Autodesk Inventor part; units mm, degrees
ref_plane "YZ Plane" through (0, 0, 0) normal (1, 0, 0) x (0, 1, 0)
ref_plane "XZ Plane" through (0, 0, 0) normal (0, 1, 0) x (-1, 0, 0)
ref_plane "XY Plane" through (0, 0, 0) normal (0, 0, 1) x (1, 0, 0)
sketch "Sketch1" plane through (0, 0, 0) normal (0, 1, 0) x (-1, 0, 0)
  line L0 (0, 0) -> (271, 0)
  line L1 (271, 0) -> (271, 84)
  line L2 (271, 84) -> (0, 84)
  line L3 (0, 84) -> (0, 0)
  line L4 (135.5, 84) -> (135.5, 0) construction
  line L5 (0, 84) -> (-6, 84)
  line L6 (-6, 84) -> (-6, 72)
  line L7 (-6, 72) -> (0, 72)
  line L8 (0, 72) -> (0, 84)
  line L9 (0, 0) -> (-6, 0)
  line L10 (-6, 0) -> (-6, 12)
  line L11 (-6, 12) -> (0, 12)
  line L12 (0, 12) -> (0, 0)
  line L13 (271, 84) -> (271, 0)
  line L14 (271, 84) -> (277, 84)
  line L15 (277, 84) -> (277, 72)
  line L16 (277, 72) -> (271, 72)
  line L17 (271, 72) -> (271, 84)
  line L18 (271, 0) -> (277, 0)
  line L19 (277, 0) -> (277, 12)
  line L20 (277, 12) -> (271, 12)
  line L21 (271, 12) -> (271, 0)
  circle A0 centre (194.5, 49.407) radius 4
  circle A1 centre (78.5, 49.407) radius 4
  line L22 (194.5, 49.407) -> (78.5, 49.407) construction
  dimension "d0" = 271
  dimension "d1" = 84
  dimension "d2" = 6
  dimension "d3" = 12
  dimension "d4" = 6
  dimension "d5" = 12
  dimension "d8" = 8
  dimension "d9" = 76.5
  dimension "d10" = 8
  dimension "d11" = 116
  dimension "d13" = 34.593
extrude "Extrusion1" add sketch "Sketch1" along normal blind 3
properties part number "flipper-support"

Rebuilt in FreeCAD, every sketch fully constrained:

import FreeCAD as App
import Part
import Sketcher
from FreeCAD import Vector

doc = App.newDocument("Part")
body = doc.addObject("PartDesign::Body", "Body")

# Sketch on XZ plane
sketch1 = body.newObject("Sketcher::SketchObject", "Sketch")
sketch1.AttachmentSupport = (doc.getObject("XZ_Plane"), [""])
sketch1.MapMode = "FlatFace"
sketch1.addGeometry(Part.LineSegment(Vector(0, 72, 0), Vector(0, 12, 0)), False)
sketch1.addGeometry(Part.LineSegment(Vector(0, 12, 0), Vector(6, 12, 0)), False)
sketch1.addGeometry(Part.LineSegment(Vector(6, 12, 0), Vector(6, 0, 0)), False)
sketch1.addGeometry(Part.LineSegment(Vector(6, 0, 0), Vector(-277, 0, 0)), False)
sketch1.addGeometry(Part.LineSegment(Vector(-277, 0, 0), Vector(-277, 12, 0)), False)
sketch1.addGeometry(Part.LineSegment(Vector(-277, 12, 0), Vector(-271, 12, 0)), False)
sketch1.addGeometry(Part.LineSegment(Vector(-271, 12, 0), Vector(-271, 72, 0)), False)
sketch1.addGeometry(Part.LineSegment(Vector(-271, 72, 0), Vector(-277, 72, 0)), False)
sketch1.addGeometry(Part.LineSegment(Vector(-277, 72, 0), Vector(-277, 84, 0)), False)
sketch1.addGeometry(Part.LineSegment(Vector(-277, 84, 0), Vector(6, 84, 0)), False)
sketch1.addGeometry(Part.LineSegment(Vector(6, 84, 0), Vector(6, 72, 0)), False)
sketch1.addGeometry(Part.LineSegment(Vector(6, 72, 0), Vector(0, 72, 0)), False)
sketch1.addGeometry(Part.Circle(Vector(-78.5, 49.407, 0), Vector(0, 0, 1), 4), False)
sketch1.addGeometry(Part.Circle(Vector(-194.5, 49.407, 0), Vector(0, 0, 1), 4), False)
sketch1.addConstraint(Sketcher.Constraint("Coincident", 0, 2, 1, 1))
sketch1.addConstraint(Sketcher.Constraint("Coincident", 1, 2, 2, 1))
sketch1.addConstraint(Sketcher.Constraint("Coincident", 2, 2, 3, 1))
sketch1.addConstraint(Sketcher.Constraint("Coincident", 3, 2, 4, 1))
sketch1.addConstraint(Sketcher.Constraint("Coincident", 4, 2, 5, 1))
sketch1.addConstraint(Sketcher.Constraint("Coincident", 5, 2, 6, 1))
sketch1.addConstraint(Sketcher.Constraint("Coincident", 6, 2, 7, 1))
sketch1.addConstraint(Sketcher.Constraint("Coincident", 7, 2, 8, 1))
sketch1.addConstraint(Sketcher.Constraint("Coincident", 8, 2, 9, 1))
sketch1.addConstraint(Sketcher.Constraint("Coincident", 9, 2, 10, 1))
sketch1.addConstraint(Sketcher.Constraint("Coincident", 10, 2, 11, 1))
sketch1.addConstraint(Sketcher.Constraint("Coincident", 11, 2, 0, 1))
sketch1.addConstraint(Sketcher.Constraint("Vertical", 0))
sketch1.addConstraint(Sketcher.Constraint("Horizontal", 1))
sketch1.addConstraint(Sketcher.Constraint("Vertical", 2))
sketch1.addConstraint(Sketcher.Constraint("Horizontal", 3))
sketch1.addConstraint(Sketcher.Constraint("Vertical", 4))
sketch1.addConstraint(Sketcher.Constraint("Horizontal", 5))
sketch1.addConstraint(Sketcher.Constraint("Vertical", 6))
sketch1.addConstraint(Sketcher.Constraint("Horizontal", 7))
sketch1.addConstraint(Sketcher.Constraint("Vertical", 8))
sketch1.addConstraint(Sketcher.Constraint("Horizontal", 9))
sketch1.addConstraint(Sketcher.Constraint("Vertical", 10))
sketch1.addConstraint(Sketcher.Constraint("Horizontal", 11))
sketch1.addConstraint(Sketcher.Constraint("Equal", 12, 13))
sketch1.addConstraint(Sketcher.Constraint("PointOnObject", 0, 2, -2))
sketch1.addConstraint(Sketcher.Constraint("PointOnObject", 2, 2, -1))
sketch1.addConstraint(Sketcher.Constraint("Horizontal", 12, 3, 13, 3))
sketch1.addConstraint(Sketcher.Constraint("Horizontal", 1, 2, 4, 2))
sketch1.addConstraint(Sketcher.Constraint("Horizontal", 7, 2, 10, 2))
sketch1.addConstraint(Sketcher.Constraint("Vertical", 4, 2, 7, 2))
sketch1.addConstraint(Sketcher.Constraint("Vertical", 2, 2, 9, 2))
sketch1.addConstraint(Sketcher.Constraint("Equal", 1, 5))
sketch1.addConstraint(Sketcher.Constraint("Equal", 4, 8))
sketch1.addConstraint(Sketcher.Constraint("Diameter", 12, 8.0))
sketch1.addConstraint(Sketcher.Constraint("DistanceX", 1, 1, 1, 2, 6.0))
sketch1.addConstraint(Sketcher.Constraint("DistanceY", 2, 2, 2, 1, 12.0))
sketch1.addConstraint(Sketcher.Constraint("DistanceX", 5, 2, -1, 1, 271.0))
sketch1.addConstraint(Sketcher.Constraint("DistanceY", -1, 1, 8, 2, 84.0))
sketch1.addConstraint(Sketcher.Constraint("DistanceX", 13, 3, 12, 3, 116.0))
sketch1.addConstraint(Sketcher.Constraint("DistanceX", 5, 2, 13, 3, 76.5))
sketch1.addConstraint(Sketcher.Constraint("DistanceY", 12, 3, 9, 2, 34.593))
pad1 = body.newObject("PartDesign::Pad", "Pad")
pad1.Profile = sketch1
pad1.Length = 3
pad1.Reversed = True

doc.recompute()
